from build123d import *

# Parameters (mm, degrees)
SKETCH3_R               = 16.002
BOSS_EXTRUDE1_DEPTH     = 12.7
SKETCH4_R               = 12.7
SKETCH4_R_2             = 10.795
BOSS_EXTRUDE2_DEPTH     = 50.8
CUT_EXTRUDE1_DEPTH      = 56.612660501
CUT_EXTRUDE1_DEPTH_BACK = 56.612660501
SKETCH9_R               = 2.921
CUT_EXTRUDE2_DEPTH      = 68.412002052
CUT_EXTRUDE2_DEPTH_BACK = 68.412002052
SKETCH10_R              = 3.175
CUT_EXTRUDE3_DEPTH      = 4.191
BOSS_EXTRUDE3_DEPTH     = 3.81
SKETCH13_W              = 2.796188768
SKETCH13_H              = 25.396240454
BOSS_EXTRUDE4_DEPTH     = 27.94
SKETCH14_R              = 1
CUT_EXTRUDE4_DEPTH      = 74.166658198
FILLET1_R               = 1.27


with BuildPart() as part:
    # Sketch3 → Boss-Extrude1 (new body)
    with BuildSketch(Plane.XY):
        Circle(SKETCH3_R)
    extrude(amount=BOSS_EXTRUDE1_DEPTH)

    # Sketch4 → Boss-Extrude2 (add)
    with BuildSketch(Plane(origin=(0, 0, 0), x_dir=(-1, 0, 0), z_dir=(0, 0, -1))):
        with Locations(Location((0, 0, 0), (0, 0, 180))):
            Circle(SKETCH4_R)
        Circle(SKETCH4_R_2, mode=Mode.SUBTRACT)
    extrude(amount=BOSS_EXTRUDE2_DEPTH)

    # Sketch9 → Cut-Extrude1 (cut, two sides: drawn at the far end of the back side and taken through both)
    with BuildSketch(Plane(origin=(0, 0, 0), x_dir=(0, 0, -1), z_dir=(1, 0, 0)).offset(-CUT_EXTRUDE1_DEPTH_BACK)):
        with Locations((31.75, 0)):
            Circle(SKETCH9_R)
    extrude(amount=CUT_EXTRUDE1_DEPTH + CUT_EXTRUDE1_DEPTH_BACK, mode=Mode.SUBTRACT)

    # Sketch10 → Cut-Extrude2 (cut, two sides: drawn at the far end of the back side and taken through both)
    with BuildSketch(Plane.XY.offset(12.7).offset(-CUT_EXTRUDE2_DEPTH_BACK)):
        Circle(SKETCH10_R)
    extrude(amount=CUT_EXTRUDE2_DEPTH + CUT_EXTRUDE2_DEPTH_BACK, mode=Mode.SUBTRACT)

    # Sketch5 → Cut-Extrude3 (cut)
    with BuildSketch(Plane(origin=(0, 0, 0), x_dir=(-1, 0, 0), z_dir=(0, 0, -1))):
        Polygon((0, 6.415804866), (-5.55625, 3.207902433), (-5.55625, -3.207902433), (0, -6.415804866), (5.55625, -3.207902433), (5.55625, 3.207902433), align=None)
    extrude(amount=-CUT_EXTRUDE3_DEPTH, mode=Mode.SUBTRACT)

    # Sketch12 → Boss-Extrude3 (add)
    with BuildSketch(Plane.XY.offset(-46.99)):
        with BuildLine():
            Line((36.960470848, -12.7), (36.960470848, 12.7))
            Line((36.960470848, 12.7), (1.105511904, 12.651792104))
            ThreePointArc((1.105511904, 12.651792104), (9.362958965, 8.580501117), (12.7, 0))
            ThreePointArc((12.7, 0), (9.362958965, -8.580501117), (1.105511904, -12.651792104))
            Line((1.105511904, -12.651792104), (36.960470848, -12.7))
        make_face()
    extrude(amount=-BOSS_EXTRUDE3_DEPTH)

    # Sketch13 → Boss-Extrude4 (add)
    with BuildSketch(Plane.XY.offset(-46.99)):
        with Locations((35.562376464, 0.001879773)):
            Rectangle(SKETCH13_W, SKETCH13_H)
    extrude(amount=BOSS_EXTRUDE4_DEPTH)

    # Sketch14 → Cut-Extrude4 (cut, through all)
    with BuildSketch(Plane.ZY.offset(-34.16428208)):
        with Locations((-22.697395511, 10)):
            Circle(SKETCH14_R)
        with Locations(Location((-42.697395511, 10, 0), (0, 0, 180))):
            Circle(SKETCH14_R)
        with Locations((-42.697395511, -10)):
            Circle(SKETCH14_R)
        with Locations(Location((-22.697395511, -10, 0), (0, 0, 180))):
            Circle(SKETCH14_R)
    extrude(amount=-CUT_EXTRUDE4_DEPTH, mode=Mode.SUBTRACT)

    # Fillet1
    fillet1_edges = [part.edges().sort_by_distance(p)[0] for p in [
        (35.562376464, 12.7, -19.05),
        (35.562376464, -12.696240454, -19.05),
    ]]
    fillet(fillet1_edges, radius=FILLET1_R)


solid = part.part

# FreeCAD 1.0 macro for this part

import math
import FreeCAD as App
import Part
import Sketcher

V = App.Vector
Q = App.Units.Quantity


def edges_at(feature, points):
    """Names of the edges that pass closest to the given points."""
    edges = feature.Shape.Edges
    near = lambda p: min(range(len(edges)), key=lambda i: edges[i].distToShape(Part.Vertex(*p))[0])
    return sorted({f"Edge{near(p) + 1}" for p in points})


def add_polygon(sketch, points):
    """Adds a closed chain of lines whose ends are joined by coincident constraints."""
    first, n = sketch.GeometryCount, len(points)
    for a, b in zip(points, points[1:] + points[:1]):
        sketch.addGeometry(Part.LineSegment(App.Vector(*a, 0), App.Vector(*b, 0)), False)
    for i in range(n):
        sketch.addConstraint(Sketcher.Constraint("Coincident", first + i, 2, first + (i + 1) % n, 1))

doc = App.newDocument("Part")
body = doc.addObject("PartDesign::Body", "Body")

# Sketch on XY plane
sketch1 = doc.addObject("Sketcher::SketchObject", "Sketch")
body.addObject(sketch1)
sketch1.AttachmentSupport = (doc.XY_Plane, [""])
sketch1.MapMode = "FlatFace"
sketch1.addGeometry(Part.Circle(V(0, 0, 0), V(0, 0, 1), 16.002), False)
sketch1.addConstraint([
    Sketcher.Constraint("Coincident", 0, 3, -1, 1),
    Sketcher.Constraint("Diameter", 0, Q("1.26 in")),
])
pad1 = doc.addObject("PartDesign::Pad", "Pad")
body.addObject(pad1)
pad1.Profile = sketch1
pad1.Length = Q("0.5 in")

# Sketch on XY plane
sketch2 = doc.addObject("Sketcher::SketchObject", "Sketch001")
body.addObject(sketch2)
sketch2.AttachmentSupport = (doc.XY_Plane, [""])
sketch2.MapMode = "FlatFace"
sketch2.addGeometry([
    Part.Circle(V(0, 0, 0), V(0, 0, 1), 12.7),
    Part.Circle(V(0, 0, 0), V(0, 0, 1), 10.795),
], False)
sketch2.addConstraint([
    Sketcher.Constraint("Coincident", 0, 3, -1, 1),
    Sketcher.Constraint("Coincident", 1, 3, -1, 1),
    Sketcher.Constraint("Diameter", 0, Q("1 in")),
    Sketcher.Constraint("Diameter", 1, Q("0.85 in")),
])
pad2 = doc.addObject("PartDesign::Pad", "Pad001")
body.addObject(pad2)
pad2.Profile = sketch2
pad2.Length = Q("2 in")
pad2.Reversed = True

# Sketch on YZ plane
sketch3 = doc.addObject("Sketcher::SketchObject", "Sketch002")
body.addObject(sketch3)
sketch3.AttachmentSupport = (doc.YZ_Plane, [""])
sketch3.MapMode = "FlatFace"
sketch3.addGeometry(Part.Circle(V(0, -31.75, 0), V(0, 0, 1), 2.921), False)
sketch3.addConstraint([
    Sketcher.Constraint("PointOnObject", 0, 3, -2),
    Sketcher.Constraint("Diameter", 0, Q("0.23 in")),
    Sketcher.Constraint("DistanceY", 0, 3, -1, 1, Q("1.25 in")),
])
pocket1 = doc.addObject("PartDesign::Pocket", "Pocket")
body.addObject(pocket1)
pocket1.Profile = sketch3
pocket1.Type = "ThroughAll"
pocket1.Midplane = True

# Sketch on XY plane
sketch4 = doc.addObject("Sketcher::SketchObject", "Sketch003")
body.addObject(sketch4)
sketch4.AttachmentSupport = (doc.XY_Plane, [""])
sketch4.MapMode = "FlatFace"
sketch4.AttachmentOffset = App.Placement(V(0, 0, 0.5 * 25.4), App.Rotation())
sketch4.addGeometry(Part.Circle(V(0, 0, 0), V(0, 0, 1), 3.175), False)
sketch4.addConstraint([
    Sketcher.Constraint("Coincident", 0, 3, -1, 1),
    Sketcher.Constraint("Diameter", 0, Q("0.25 in")),
])
pocket2 = doc.addObject("PartDesign::Pocket", "Pocket001")
body.addObject(pocket2)
pocket2.Profile = sketch4
pocket2.Type = "ThroughAll"
pocket2.Midplane = True

# Sketch on XY plane
sketch5 = doc.addObject("Sketcher::SketchObject", "Sketch004")
body.addObject(sketch5)
sketch5.AttachmentSupport = (doc.XY_Plane, [""])
sketch5.MapMode = "FlatFace"
add_polygon(sketch5, [(0, 6.415805), (5.55625, 3.207902), (5.55625, -3.207902), (0, -6.415805), (-5.55625, -3.207902), (-5.55625, 3.207902)])  # lines 0-5
sketch5.addConstraint([
    Sketcher.Constraint("Vertical", 1),
    Sketcher.Constraint("Vertical", 4),
    Sketcher.Constraint("Symmetric", 0, 2, 3, 2, -1, 1),
    Sketcher.Constraint("Symmetric", 2, 2, 5, 2, -1, 1),
    Sketcher.Constraint("PointOnObject", 2, 2, -2),
    Sketcher.Constraint("Parallel", 2, 5),
    Sketcher.Constraint("Horizontal", 1, 2, 3, 2),
    Sketcher.Constraint("Angle", 0, Q("-30 deg")),
    Sketcher.Constraint("DistanceX", -1, 1, 0, 2, Q("0.21875 in")),
    Sketcher.Constraint("DistanceY", 1, 2, 1, 1, 6.415805),
])
pocket3 = doc.addObject("PartDesign::Pocket", "Pocket002")
body.addObject(pocket3)
pocket3.Profile = sketch5
pocket3.Length = Q("0.165 in")
pocket3.Reversed = True

# Sketch on XY plane
sketch6 = doc.addObject("Sketcher::SketchObject", "Sketch005")
body.addObject(sketch6)
sketch6.AttachmentSupport = (doc.XY_Plane, [""])
sketch6.MapMode = "FlatFace"
sketch6.AttachmentOffset = App.Placement(V(0, 0, -1.85 * 25.4), App.Rotation())
sketch6.addGeometry([
    Part.LineSegment(V(36.960471, -12.7, 0), V(36.960471, 12.7, 0)),  # 0
    Part.LineSegment(V(36.960471, 12.7, 0), V(1.105512, 12.651792, 0)),  # 1
    Part.ArcOfCircle(Part.Circle(V(0, 0, 0), V(0, 0, 1), 12.7), math.radians(0), math.radians(85.006186)),  # 2
    Part.ArcOfCircle(Part.Circle(V(0, 0, 0), V(0, 0, 1), 12.7), math.radians(-85.006186), math.radians(0)),  # 3
    Part.LineSegment(V(1.105512, -12.651792, 0), V(36.960471, -12.7, 0)),  # 4
], False)
sketch6.addConstraint([
    Sketcher.Constraint("Coincident", 0, 2, 1, 1),
    Sketcher.Constraint("Coincident", 1, 2, 2, 2),
    Sketcher.Constraint("Tangent", 2, 1, 3, 2),
    Sketcher.Constraint("Coincident", 3, 1, 4, 1),
    Sketcher.Constraint("Coincident", 4, 2, 0, 1),
    Sketcher.Constraint("Vertical", 0),
    Sketcher.Constraint("Coincident", 2, 3, -1, 1),
    Sketcher.Constraint("Equal", 2, 3),
    Sketcher.Constraint("PointOnObject", 2, 1, -1),
    Sketcher.Constraint("Vertical", 1, 2, 3, 1),
    Sketcher.Constraint("Radius", 2, Q("0.5 in")),
    Sketcher.Constraint("DistanceY", 0, 1, 0, 2, Q("1 in")),
    Sketcher.Constraint("DistanceY", -1, 1, 0, 2, Q("0.5 in")),
    Sketcher.Constraint("Distance", 1, 35.854991),
    Sketcher.Constraint("DistanceX", -1, 1, 0, 2, 36.960471),
])
pad3 = doc.addObject("PartDesign::Pad", "Pad002")
body.addObject(pad3)
pad3.Profile = sketch6
pad3.Length = Q("0.15 in")
pad3.Reversed = True

# Sketch on XY plane
sketch7 = doc.addObject("Sketcher::SketchObject", "Sketch006")
body.addObject(sketch7)
sketch7.AttachmentSupport = (doc.XY_Plane, [""])
sketch7.MapMode = "FlatFace"
sketch7.AttachmentOffset = App.Placement(V(0, 0, -1.85 * 25.4), App.Rotation())
add_polygon(sketch7, [(34.164282, 12.7), (34.164282, -12.69624), (36.960471, -12.69624), (36.960471, 12.7)])  # lines 0-3
sketch7.addConstraint([
    Sketcher.Constraint("Vertical", 0),
    Sketcher.Constraint("Horizontal", 1),
    Sketcher.Constraint("Vertical", 2),
    Sketcher.Constraint("Horizontal", 3),
    Sketcher.Constraint("DistanceY", -1, 1, 2, 2, Q("0.5 in")),
    Sketcher.Constraint("DistanceX", 1, 1, 1, 2, 2.796189),
    Sketcher.Constraint("DistanceY", 0, 2, 0, 1, 25.39624),
    Sketcher.Constraint("DistanceX", -1, 1, 1, 2, 36.960471),
])
pad4 = doc.addObject("PartDesign::Pad", "Pad003")
body.addObject(pad4)
pad4.Profile = sketch7
pad4.Length = Q("1.1 in")

# Sketch on YZ plane
sketch8 = doc.addObject("Sketcher::SketchObject", "Sketch007")
body.addObject(sketch8)
sketch8.AttachmentSupport = (doc.YZ_Plane, [""])
sketch8.MapMode = "FlatFace"
sketch8.AttachmentOffset = App.Placement(V(0, 0, 34.164282), App.Rotation())
sketch8.addGeometry([
    Part.Circle(V(10, -22.697396, 0), V(0, 0, 1), 1),
    Part.Circle(V(10, -42.697396, 0), V(0, 0, 1), 1),
    Part.Circle(V(-10, -42.697396, 0), V(0, 0, 1), 1),
    Part.Circle(V(-10, -22.697396, 0), V(0, 0, 1), 1),
], False)
sketch8.addConstraint([
    Sketcher.Constraint("Equal", 0, 1),
    Sketcher.Constraint("Equal", 1, 2),
    Sketcher.Constraint("Equal", 2, 3),
    Sketcher.Constraint("Symmetric", 1, 3, 2, 3, -2),
    Sketcher.Constraint("Symmetric", 0, 3, 3, 3, -2),
    Sketcher.Constraint("Vertical", 0, 3, 1, 3),
    Sketcher.Constraint("Diameter", 0, 2.0),
    Sketcher.Constraint("DistanceY", 1, 3, -1, 1, Q("1.6809998 in")),
    Sketcher.Constraint("DistanceX", -1, 1, 0, 3, 10.0),
    Sketcher.Constraint("DistanceY", 1, 3, 0, 3, 20.0),
])
pocket4 = doc.addObject("PartDesign::Pocket", "Pocket003")
body.addObject(pocket4)
pocket4.Profile = sketch8
pocket4.Type = "ThroughAll"
pocket4.Reversed = True
doc.recompute()

fillet = doc.addObject("PartDesign::Fillet", "Fillet")
body.addObject(fillet)
fillet.Base = (pocket4, edges_at(pocket4, [(35.562, 12.7, -19.05), (35.562, -12.696, -19.05)]))
fillet.Radius = Q("0.05 in")

doc.recompute()
